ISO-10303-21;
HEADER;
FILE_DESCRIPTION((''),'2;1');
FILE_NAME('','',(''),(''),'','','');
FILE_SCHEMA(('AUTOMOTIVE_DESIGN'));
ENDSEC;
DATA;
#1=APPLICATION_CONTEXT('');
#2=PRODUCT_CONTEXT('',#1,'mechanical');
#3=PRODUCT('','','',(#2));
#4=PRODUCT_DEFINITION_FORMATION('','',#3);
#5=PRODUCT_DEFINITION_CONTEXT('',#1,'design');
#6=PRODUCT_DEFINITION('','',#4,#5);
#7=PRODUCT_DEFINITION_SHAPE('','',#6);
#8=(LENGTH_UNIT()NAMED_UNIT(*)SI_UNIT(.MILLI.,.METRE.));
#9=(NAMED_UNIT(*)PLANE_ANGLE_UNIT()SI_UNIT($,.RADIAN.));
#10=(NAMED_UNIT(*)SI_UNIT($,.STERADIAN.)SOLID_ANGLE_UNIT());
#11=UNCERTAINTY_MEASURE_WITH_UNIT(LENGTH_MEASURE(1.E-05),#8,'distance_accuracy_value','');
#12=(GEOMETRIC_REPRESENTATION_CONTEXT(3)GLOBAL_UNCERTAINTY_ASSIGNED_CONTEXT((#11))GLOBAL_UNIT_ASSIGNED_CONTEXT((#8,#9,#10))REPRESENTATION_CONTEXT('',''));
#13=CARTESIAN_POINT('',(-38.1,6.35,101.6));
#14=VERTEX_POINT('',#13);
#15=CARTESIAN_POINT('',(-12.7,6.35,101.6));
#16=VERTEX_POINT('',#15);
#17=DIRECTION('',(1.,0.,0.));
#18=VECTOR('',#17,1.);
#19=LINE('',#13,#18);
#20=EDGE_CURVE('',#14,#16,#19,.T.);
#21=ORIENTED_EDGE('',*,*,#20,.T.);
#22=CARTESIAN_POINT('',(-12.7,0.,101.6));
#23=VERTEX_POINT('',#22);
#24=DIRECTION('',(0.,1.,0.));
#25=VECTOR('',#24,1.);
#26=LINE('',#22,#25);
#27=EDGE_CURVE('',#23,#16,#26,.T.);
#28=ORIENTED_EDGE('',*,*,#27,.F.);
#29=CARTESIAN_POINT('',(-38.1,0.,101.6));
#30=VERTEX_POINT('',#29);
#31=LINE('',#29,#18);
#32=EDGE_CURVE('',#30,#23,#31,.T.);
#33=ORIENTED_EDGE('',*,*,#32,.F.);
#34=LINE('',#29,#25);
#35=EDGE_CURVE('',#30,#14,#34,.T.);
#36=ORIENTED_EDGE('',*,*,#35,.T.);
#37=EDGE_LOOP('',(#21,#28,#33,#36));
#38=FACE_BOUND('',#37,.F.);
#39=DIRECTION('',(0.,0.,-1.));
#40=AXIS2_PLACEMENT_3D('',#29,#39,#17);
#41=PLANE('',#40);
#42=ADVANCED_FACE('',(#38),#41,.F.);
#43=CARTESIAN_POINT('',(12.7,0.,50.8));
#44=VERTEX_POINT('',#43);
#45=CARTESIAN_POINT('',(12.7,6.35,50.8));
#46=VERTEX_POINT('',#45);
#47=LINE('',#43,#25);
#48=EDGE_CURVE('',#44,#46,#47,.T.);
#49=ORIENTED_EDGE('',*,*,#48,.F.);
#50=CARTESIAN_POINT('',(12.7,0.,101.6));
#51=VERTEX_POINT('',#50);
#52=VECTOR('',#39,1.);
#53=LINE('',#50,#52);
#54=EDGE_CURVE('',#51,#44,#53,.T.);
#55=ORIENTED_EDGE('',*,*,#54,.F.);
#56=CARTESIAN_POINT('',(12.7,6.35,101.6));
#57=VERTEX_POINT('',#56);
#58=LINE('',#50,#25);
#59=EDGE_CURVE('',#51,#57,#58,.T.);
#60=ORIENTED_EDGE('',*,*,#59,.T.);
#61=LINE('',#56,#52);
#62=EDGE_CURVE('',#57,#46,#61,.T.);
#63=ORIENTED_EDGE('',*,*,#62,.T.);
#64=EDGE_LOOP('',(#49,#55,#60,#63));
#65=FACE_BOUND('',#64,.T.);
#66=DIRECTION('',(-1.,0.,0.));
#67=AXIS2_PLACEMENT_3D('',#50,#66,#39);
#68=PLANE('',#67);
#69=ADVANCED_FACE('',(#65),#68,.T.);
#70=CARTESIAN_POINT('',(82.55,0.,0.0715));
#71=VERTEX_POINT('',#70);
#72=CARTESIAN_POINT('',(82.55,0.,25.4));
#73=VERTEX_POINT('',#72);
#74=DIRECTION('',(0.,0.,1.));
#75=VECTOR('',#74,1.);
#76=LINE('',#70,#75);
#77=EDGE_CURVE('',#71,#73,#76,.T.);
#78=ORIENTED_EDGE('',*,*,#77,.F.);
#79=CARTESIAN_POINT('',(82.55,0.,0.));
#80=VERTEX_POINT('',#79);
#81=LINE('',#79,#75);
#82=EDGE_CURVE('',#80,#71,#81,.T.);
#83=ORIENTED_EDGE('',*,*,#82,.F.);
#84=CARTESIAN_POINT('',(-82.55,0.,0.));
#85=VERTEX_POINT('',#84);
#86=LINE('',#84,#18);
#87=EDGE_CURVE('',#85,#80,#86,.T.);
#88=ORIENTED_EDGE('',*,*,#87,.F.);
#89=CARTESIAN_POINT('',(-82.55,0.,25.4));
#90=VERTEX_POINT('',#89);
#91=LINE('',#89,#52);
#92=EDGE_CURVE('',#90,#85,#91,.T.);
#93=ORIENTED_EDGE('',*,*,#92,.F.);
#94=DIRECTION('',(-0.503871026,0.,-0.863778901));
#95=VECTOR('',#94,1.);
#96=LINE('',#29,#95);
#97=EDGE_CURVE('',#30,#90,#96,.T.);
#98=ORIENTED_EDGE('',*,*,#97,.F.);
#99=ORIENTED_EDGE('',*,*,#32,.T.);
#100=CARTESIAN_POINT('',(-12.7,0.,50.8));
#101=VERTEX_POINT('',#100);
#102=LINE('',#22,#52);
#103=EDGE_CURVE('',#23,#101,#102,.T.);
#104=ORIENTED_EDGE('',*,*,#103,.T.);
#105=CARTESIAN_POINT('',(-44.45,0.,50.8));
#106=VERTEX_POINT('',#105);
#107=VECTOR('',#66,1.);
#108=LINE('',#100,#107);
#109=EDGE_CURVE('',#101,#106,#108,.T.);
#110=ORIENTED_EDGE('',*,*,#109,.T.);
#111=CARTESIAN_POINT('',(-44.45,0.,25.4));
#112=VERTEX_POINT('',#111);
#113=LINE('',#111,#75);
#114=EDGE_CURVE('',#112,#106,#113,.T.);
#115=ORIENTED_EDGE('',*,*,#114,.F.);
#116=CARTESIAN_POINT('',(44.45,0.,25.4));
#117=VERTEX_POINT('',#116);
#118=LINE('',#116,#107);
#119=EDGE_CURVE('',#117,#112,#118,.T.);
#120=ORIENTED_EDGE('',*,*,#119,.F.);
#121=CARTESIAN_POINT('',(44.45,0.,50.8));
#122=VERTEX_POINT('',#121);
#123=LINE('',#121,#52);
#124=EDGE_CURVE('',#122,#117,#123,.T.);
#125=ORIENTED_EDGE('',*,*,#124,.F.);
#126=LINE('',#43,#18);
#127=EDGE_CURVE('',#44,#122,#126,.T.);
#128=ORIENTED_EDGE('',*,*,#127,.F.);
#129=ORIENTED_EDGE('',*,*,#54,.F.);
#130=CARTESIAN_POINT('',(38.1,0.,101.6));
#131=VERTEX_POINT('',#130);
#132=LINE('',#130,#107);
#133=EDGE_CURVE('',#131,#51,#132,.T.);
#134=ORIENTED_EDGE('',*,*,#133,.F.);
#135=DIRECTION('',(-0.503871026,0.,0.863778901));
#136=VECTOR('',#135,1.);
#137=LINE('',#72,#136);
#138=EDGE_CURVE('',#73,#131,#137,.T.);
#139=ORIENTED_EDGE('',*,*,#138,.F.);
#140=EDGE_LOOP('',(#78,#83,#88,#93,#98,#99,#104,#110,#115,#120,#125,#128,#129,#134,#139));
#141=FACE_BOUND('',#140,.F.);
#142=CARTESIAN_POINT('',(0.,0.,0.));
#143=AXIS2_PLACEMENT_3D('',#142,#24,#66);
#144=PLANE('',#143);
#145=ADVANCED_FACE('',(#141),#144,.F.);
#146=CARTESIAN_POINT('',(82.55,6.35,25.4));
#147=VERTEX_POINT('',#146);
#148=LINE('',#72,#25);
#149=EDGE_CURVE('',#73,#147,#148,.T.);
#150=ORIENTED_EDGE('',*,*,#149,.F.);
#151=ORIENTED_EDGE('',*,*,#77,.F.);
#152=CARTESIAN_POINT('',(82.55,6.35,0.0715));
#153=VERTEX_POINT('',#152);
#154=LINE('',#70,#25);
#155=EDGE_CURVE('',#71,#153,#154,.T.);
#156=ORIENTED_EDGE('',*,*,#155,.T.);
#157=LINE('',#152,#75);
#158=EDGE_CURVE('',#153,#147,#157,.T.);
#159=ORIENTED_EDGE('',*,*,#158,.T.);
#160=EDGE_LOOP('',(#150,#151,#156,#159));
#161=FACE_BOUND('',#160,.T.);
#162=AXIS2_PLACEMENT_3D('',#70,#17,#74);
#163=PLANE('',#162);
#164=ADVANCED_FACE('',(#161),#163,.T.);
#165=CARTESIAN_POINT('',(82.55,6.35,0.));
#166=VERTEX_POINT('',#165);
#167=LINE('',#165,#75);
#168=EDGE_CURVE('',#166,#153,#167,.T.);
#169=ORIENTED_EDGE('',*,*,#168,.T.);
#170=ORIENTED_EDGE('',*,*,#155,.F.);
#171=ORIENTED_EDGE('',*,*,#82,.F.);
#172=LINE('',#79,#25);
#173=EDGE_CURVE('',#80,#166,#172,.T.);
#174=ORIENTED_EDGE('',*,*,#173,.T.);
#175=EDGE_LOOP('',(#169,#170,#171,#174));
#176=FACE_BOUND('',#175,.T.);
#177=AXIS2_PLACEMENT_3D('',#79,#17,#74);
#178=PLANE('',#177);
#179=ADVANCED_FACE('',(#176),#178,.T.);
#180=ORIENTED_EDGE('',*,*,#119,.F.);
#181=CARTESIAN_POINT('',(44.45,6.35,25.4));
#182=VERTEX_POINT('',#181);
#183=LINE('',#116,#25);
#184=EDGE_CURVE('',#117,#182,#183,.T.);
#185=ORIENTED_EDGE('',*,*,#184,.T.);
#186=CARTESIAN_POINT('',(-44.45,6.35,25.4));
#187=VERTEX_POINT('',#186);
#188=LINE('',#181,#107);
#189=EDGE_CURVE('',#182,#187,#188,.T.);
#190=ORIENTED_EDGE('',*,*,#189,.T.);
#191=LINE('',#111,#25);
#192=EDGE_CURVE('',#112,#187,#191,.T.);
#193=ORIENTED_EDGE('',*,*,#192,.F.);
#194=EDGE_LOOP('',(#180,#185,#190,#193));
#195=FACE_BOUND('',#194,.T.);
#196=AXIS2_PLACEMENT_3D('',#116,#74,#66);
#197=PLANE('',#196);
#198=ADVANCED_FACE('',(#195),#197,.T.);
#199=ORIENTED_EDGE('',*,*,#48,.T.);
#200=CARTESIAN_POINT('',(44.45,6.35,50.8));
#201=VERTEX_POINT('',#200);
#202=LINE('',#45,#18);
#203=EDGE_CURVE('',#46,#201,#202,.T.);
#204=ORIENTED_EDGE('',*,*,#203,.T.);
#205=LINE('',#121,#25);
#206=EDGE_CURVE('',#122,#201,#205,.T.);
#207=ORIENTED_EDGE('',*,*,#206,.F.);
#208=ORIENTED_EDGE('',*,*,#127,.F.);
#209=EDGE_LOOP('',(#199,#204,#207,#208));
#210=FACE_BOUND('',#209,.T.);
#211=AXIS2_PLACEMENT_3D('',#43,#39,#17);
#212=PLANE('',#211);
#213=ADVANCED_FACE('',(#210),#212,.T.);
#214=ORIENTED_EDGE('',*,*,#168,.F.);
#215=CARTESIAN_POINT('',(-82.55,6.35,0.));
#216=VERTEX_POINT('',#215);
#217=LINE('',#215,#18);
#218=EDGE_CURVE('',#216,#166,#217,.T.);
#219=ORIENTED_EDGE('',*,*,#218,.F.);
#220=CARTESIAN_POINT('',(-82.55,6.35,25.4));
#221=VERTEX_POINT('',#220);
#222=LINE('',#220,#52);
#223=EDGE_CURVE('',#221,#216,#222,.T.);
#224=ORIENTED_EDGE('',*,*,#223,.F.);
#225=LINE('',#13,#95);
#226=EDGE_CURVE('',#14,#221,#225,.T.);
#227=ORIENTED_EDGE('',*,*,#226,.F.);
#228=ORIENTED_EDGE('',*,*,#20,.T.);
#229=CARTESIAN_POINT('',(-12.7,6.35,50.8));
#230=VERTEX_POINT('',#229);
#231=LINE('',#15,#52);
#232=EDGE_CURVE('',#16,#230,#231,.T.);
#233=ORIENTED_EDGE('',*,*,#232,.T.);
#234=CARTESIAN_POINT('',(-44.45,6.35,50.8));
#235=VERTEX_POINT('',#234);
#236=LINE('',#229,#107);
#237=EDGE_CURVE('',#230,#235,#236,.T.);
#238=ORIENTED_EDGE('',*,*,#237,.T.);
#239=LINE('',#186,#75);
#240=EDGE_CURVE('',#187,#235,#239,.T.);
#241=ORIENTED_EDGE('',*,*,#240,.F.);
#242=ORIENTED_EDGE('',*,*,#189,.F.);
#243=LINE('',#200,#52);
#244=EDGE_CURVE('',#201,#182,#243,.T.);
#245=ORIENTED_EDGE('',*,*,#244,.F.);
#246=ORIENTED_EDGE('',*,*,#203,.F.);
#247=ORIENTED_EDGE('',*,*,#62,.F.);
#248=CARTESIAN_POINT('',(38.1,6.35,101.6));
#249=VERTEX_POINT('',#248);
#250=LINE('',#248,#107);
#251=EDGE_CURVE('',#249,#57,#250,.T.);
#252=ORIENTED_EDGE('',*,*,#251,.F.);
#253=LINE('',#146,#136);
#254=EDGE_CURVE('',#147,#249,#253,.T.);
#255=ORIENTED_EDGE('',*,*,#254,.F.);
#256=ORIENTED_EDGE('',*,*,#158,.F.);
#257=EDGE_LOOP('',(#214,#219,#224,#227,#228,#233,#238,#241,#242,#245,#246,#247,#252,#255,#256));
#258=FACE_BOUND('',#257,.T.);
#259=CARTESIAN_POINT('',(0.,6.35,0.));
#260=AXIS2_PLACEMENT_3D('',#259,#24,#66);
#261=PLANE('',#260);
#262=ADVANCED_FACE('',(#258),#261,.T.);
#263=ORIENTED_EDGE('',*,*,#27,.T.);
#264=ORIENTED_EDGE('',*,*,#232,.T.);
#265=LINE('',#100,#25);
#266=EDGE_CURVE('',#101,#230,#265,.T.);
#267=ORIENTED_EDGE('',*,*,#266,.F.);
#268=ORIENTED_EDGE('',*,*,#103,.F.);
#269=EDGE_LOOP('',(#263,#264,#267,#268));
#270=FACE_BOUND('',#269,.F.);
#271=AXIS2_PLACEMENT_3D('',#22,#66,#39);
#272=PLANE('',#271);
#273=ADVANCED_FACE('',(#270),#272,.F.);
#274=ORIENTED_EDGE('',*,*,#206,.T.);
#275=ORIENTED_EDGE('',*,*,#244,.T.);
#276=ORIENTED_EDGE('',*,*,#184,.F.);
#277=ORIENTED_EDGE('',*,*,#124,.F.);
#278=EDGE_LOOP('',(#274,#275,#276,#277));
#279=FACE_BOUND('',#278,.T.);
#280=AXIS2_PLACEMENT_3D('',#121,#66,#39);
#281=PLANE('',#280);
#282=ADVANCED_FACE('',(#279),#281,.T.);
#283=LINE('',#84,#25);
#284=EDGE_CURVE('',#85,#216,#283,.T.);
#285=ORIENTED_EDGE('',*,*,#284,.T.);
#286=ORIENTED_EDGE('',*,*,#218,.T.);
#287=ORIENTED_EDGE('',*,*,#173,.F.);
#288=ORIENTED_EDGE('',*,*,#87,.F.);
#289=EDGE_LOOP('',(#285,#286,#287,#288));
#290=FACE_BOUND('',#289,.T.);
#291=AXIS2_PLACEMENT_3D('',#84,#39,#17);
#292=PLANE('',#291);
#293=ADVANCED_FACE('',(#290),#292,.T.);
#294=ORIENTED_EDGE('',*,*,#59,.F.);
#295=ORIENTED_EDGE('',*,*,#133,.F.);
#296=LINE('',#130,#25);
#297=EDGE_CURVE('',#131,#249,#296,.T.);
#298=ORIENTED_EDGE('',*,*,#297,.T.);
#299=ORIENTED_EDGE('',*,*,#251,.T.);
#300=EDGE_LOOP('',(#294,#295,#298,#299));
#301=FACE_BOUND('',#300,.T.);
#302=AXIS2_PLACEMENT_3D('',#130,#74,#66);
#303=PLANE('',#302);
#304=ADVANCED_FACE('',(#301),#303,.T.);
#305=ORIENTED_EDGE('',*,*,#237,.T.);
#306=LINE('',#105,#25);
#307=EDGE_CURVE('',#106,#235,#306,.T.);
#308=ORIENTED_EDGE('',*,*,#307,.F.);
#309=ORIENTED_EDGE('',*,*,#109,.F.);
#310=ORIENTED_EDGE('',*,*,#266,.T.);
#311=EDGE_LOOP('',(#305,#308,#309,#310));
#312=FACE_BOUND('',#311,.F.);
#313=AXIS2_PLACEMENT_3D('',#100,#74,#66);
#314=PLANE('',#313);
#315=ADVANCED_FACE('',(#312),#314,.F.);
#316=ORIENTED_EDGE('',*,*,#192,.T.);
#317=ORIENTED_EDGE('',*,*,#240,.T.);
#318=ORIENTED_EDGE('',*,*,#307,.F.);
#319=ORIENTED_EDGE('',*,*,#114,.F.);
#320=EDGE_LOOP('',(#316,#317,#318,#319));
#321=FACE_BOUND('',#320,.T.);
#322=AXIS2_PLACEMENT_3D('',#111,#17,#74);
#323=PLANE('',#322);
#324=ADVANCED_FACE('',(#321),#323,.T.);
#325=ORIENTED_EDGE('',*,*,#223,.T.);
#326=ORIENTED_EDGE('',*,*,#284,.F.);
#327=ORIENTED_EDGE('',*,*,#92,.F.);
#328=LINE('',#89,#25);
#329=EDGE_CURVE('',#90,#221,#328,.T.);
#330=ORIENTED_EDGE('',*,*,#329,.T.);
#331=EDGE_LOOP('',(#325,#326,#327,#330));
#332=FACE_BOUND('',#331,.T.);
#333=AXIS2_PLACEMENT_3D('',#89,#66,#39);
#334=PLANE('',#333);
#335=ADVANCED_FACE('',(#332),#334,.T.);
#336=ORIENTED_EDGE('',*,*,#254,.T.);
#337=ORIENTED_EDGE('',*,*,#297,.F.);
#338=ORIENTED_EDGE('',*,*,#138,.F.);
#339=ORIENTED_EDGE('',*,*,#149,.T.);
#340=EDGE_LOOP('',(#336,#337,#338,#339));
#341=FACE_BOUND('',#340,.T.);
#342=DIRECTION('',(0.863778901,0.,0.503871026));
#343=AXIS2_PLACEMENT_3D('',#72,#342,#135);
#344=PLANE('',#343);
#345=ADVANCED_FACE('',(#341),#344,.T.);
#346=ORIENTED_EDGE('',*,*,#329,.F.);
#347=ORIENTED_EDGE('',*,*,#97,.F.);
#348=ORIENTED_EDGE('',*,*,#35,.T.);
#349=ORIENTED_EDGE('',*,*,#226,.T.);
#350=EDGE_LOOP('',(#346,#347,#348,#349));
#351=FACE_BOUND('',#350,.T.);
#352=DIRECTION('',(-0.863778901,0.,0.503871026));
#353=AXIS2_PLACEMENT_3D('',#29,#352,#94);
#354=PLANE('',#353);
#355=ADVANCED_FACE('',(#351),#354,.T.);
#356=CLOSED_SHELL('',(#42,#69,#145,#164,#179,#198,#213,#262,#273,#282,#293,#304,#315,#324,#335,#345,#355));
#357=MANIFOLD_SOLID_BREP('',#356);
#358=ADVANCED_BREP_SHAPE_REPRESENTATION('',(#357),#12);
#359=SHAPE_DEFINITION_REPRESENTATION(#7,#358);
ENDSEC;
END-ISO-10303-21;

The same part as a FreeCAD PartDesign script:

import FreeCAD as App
import Part
import Sketcher

V = App.Vector
Q = App.Units.Quantity

doc = App.newDocument("Part")
body = doc.addObject("PartDesign::Body", "Body")

sketch1 = body.newObject("Sketcher::SketchObject", "Sketch")
sketch1.AttachmentSupport = (doc.getObject("XZ_Plane"), [""])
sketch1.MapMode = "FlatFace"
sketch1.addGeometry([
    Part.LineSegment(V(83, 0, 0), V(-83, 0, 0)),
    Part.LineSegment(V(-83, 0, 0), V(-83, 25, 0)),
    Part.LineSegment(V(-83, 25, 0), V(-38, 102, 0)),
    Part.LineSegment(V(-38, 102, 0), V(-13, 102, 0)),
    Part.LineSegment(V(-13, 102, 0), V(-13, 51, 0)),
    Part.LineSegment(V(-13, 51, 0), V(-44, 51, 0)),
    Part.LineSegment(V(-44, 51, 0), V(-44, 25, 0)),
    Part.LineSegment(V(-44, 25, 0), V(44, 25, 0)),
    Part.LineSegment(V(44, 25, 0), V(44, 51, 0)),
    Part.LineSegment(V(44, 51, 0), V(13, 51, 0)),
    Part.LineSegment(V(13, 51, 0), V(13, 102, 0)),
    Part.LineSegment(V(13, 102, 0), V(38, 102, 0)),
    Part.LineSegment(V(38, 102, 0), V(83, 25, 0)),
    Part.LineSegment(V(83, 25, 0), V(83, 0, 0)),
], False)
sketch1.addConstraint([
    Sketcher.Constraint("Coincident", 0, 2, 1, 1),
    Sketcher.Constraint("Coincident", 1, 2, 2, 1),
    Sketcher.Constraint("Coincident", 2, 2, 3, 1),
    Sketcher.Constraint("Coincident", 3, 2, 4, 1),
    Sketcher.Constraint("Coincident", 4, 2, 5, 1),
    Sketcher.Constraint("Coincident", 5, 2, 6, 1),
    Sketcher.Constraint("Coincident", 6, 2, 7, 1),
    Sketcher.Constraint("Coincident", 7, 2, 8, 1),
    Sketcher.Constraint("Coincident", 8, 2, 9, 1),
    Sketcher.Constraint("Coincident", 9, 2, 10, 1),
    Sketcher.Constraint("Coincident", 10, 2, 11, 1),
    Sketcher.Constraint("Coincident", 11, 2, 12, 1),
    Sketcher.Constraint("Coincident", 12, 2, 13, 1),
    Sketcher.Constraint("Coincident", 13, 2, 0, 1),
    Sketcher.Constraint("Horizontal", 0),
    Sketcher.Constraint("Vertical", 1),
    Sketcher.Constraint("Horizontal", 3),
    Sketcher.Constraint("Vertical", 4),
    Sketcher.Constraint("Horizontal", 5),
    Sketcher.Constraint("Vertical", 6),
    Sketcher.Constraint("Horizontal", 7),
    Sketcher.Constraint("Vertical", 8),
    Sketcher.Constraint("Horizontal", 9),
    Sketcher.Constraint("Vertical", 10),
    Sketcher.Constraint("Horizontal", 11),
    Sketcher.Constraint("Vertical", 13),
    Sketcher.Constraint("Symmetric", 0, 2, 13, 2, -1, 1),
    Sketcher.Constraint("Symmetric", 5, 2, 8, 2, -2),
    Sketcher.Constraint("Symmetric", 3, 2, 10, 2, -2),
    Sketcher.Constraint("Horizontal", 1, 2, 6, 2),
    Sketcher.Constraint("Horizontal", 7, 2, 12, 2),
    Sketcher.Constraint("Equal", 3, 11),
    Sketcher.Constraint("Equal", 11, 1),
    Sketcher.Constraint("Equal", 1, 6),
    Sketcher.Constraint("DistanceX", 3, 1, 3, 2, Q("1 in")),
    Sketcher.Constraint("DistanceX", 0, 2, 0, 1, Q("6.5 in")),
    Sketcher.Constraint("DistanceX", 7, 1, 7, 2, Q("3.5 in")),
    Sketcher.Constraint("DistanceY", -1, 1, 2, 2, Q("4 in")),
    Sketcher.Constraint("DistanceX", 4, 2, 9, 2, Q("1 in")),
])
pad1 = body.newObject("PartDesign::Pad", "Pad")
pad1.Profile = sketch1
pad1.Length = Q("0.25 in")
pad1.Reversed = True

doc.recompute()
